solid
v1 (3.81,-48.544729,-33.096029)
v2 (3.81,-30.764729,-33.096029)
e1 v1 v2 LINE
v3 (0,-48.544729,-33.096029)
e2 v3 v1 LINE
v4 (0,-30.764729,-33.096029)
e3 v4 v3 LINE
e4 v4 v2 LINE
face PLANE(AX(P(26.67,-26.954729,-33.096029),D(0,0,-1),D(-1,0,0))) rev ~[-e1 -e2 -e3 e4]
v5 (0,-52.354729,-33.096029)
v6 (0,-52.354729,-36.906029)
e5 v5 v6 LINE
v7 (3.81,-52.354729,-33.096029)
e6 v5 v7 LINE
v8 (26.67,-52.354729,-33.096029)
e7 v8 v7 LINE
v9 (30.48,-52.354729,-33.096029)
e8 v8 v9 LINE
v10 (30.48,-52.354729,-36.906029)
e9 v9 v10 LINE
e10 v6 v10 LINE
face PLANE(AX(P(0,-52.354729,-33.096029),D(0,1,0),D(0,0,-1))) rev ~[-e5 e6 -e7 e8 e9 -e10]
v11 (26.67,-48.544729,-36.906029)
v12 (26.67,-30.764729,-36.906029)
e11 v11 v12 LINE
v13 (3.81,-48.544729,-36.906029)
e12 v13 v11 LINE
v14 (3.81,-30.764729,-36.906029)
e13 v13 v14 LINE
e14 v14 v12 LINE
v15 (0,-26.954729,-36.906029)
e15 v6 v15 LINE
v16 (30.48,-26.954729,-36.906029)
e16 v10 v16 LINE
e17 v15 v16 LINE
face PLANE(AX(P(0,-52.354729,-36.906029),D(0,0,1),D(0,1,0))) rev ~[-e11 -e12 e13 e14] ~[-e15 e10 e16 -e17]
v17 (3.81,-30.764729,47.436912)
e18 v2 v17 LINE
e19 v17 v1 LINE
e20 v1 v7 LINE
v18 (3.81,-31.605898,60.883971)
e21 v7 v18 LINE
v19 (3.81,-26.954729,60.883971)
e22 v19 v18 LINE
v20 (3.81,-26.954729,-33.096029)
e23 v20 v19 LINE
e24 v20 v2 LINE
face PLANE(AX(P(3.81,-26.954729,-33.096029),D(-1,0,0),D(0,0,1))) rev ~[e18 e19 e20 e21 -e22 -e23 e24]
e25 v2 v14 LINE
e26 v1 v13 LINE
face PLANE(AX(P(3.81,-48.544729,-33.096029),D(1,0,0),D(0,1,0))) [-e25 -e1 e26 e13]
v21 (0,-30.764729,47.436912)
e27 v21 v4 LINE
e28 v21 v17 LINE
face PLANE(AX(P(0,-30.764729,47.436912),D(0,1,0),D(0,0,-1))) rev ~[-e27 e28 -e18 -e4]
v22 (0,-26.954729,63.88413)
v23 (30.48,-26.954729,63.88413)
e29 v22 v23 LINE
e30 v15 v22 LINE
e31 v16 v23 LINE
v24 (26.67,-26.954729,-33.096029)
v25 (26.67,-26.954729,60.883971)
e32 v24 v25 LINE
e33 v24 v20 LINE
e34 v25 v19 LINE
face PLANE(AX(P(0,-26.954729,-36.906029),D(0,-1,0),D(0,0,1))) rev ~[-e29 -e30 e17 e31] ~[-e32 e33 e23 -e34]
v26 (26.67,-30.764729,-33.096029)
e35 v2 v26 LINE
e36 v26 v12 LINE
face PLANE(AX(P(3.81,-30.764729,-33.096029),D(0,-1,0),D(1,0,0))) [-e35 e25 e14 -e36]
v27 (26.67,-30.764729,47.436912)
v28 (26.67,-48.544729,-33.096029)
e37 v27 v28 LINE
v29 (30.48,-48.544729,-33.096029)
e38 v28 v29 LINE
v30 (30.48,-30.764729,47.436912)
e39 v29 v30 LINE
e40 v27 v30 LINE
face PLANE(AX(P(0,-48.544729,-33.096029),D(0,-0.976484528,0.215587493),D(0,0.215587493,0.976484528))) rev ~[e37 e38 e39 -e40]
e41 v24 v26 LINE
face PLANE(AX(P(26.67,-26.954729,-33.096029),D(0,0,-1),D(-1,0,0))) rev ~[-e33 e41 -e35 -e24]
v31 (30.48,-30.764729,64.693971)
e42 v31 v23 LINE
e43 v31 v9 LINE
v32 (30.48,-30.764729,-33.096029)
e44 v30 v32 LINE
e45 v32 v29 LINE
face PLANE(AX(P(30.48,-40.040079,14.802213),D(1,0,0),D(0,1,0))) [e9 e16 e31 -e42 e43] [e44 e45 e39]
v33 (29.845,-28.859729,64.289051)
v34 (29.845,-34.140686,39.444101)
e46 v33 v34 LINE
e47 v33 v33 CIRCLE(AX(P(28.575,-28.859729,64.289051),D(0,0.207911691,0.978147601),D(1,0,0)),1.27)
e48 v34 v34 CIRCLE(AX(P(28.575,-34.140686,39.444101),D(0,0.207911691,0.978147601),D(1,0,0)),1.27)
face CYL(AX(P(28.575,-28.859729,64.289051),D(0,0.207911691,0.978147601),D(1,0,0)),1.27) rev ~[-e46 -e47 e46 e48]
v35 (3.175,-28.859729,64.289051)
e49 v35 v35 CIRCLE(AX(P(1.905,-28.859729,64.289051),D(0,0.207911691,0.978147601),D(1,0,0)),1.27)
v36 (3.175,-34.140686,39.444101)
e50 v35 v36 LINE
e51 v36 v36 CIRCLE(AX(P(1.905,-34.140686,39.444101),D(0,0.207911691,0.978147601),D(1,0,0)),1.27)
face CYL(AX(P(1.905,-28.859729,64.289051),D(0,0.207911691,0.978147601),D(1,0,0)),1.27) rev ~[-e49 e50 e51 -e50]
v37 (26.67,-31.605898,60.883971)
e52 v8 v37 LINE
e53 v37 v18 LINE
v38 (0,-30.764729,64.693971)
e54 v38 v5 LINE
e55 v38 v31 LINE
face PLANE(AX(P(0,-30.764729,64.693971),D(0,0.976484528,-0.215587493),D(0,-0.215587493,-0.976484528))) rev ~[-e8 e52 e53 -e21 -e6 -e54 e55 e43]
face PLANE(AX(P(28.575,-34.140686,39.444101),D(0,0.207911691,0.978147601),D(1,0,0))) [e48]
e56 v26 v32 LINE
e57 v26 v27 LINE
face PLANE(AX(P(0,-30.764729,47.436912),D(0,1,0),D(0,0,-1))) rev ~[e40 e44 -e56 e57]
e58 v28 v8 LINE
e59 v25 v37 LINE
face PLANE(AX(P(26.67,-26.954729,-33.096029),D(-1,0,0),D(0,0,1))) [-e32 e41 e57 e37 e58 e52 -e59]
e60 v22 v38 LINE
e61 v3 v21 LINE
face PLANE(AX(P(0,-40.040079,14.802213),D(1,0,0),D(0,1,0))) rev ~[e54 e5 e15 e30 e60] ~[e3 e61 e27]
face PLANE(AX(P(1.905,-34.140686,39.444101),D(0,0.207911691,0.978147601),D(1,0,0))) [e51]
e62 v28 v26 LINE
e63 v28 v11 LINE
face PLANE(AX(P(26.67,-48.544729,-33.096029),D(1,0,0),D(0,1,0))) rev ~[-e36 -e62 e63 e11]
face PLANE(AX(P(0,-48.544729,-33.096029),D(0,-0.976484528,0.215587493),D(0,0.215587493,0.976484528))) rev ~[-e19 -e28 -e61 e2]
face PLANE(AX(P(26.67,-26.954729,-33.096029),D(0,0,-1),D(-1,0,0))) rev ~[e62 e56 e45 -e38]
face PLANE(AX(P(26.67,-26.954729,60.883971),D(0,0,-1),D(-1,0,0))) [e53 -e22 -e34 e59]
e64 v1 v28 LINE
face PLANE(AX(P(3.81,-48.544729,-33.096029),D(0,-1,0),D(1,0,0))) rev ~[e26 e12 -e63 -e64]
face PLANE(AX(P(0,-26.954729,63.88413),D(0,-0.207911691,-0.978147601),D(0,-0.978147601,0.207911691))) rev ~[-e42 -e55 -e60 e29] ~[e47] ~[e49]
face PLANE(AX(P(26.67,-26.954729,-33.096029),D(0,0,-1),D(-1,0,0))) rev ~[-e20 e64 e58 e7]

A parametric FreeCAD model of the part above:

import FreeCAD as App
import Part
import Sketcher
Q = App.Units.Quantity

doc = App.newDocument("Part")
body = doc.addObject("PartDesign::Body", "Body")

sketch1 = doc.addObject("Sketcher::SketchObject", "Sketch")
body.addObject(sketch1)
sketch1.AttachmentSupport = (doc.YZ_Plane, [""])
sketch1.MapMode = "FlatFace"
sketch1.addGeometry(Part.LineSegment(App.Vector(-27, -36.9, 0), App.Vector(-27, 64.7, 0)), False)
sketch1.addGeometry(Part.LineSegment(App.Vector(-27, 64.7, 0), App.Vector(-30.8, 64.7, 0)), False)
sketch1.addGeometry(Part.LineSegment(App.Vector(-30.8, 64.7, 0), App.Vector(-52.4, -33.1, 0)), False)
sketch1.addGeometry(Part.LineSegment(App.Vector(-52.4, -33.1, 0), App.Vector(-52.4, -36.9, 0)), False)
sketch1.addGeometry(Part.LineSegment(App.Vector(-52.4, -36.9, 0), App.Vector(-27, -36.9, 0)), False)
sketch1.addGeometry(Part.LineSegment(App.Vector(-48.5, -33.1, 0), App.Vector(-30.8, 47.4, 0)), False)
sketch1.addGeometry(Part.LineSegment(App.Vector(-30.8, 47.4, 0), App.Vector(-30.8, -33.1, 0)), False)
sketch1.addGeometry(Part.LineSegment(App.Vector(-30.8, -33.1, 0), App.Vector(-48.5, -33.1, 0)), False)
sketch1.addConstraint(Sketcher.Constraint("Coincident", 0, 2, 1, 1))
sketch1.addConstraint(Sketcher.Constraint("Coincident", 1, 2, 2, 1))
sketch1.addConstraint(Sketcher.Constraint("Coincident", 2, 2, 3, 1))
sketch1.addConstraint(Sketcher.Constraint("Coincident", 3, 2, 4, 1))
sketch1.addConstraint(Sketcher.Constraint("Coincident", 4, 2, 0, 1))
sketch1.addConstraint(Sketcher.Constraint("Coincident", 5, 2, 6, 1))
sketch1.addConstraint(Sketcher.Constraint("Coincident", 6, 2, 7, 1))
sketch1.addConstraint(Sketcher.Constraint("Coincident", 7, 2, 5, 1))
sketch1.addConstraint(Sketcher.Constraint("Vertical", 0))
sketch1.addConstraint(Sketcher.Constraint("Horizontal", 1))
sketch1.addConstraint(Sketcher.Constraint("Vertical", 3))
sketch1.addConstraint(Sketcher.Constraint("Horizontal", 4))
sketch1.addConstraint(Sketcher.Constraint("Vertical", 6))
sketch1.addConstraint(Sketcher.Constraint("Horizontal", 7))
sketch1.addConstraint(Sketcher.Constraint("Parallel", 2, 5))
sketch1.addConstraint(Sketcher.Constraint("Horizontal", 2, 2, 6, 2))
sketch1.addConstraint(Sketcher.Constraint("Vertical", 1, 2, 5, 2))
sketch1.addConstraint(Sketcher.Constraint("Equal", 1, 3))
sketch1.addConstraint(Sketcher.Constraint("DistanceX", 4, 1, 4, 2, Q("1 in")))
sketch1.addConstraint(Sketcher.Constraint("DistanceY", 0, 1, 0, 2, Q("4 in")))
sketch1.addConstraint(Sketcher.Constraint("DistanceX", 7, 2, 7, 1, Q("0.7 in")))
sketch1.addConstraint(Sketcher.Constraint("DistanceX", 1, 2, 1, 1, Q("0.15 in")))
sketch1.addConstraint(Sketcher.Constraint("DistanceX", 0, 2, -1, 1, 26.954729))
sketch1.addConstraint(Sketcher.Constraint("DistanceY", -1, 1, 0, 2, 64.693971))
pad1 = doc.addObject("PartDesign::Pad", "Pad")
body.addObject(pad1)
pad1.Profile = sketch1
pad1.Length = Q("1.2 in")

sketch2 = doc.addObject("Sketcher::SketchObject", "Sketch001")
body.addObject(sketch2)
sketch2.AttachmentSupport = (doc.XZ_Plane, [""])
sketch2.MapMode = "FlatFace"
sketch2.AttachmentOffset = App.Placement(App.Vector(0, 0, 26.954729), App.Rotation())
sketch2.addGeometry(Part.LineSegment(App.Vector(27, 61, 0), App.Vector(27, -33, 0)), False)
sketch2.addGeometry(Part.LineSegment(App.Vector(27, -33, 0), App.Vector(4, -33, 0)), False)
sketch2.addGeometry(Part.LineSegment(App.Vector(4, -33, 0), App.Vector(4, 61, 0)), False)
sketch2.addGeometry(Part.LineSegment(App.Vector(4, 61, 0), App.Vector(27, 61, 0)), False)
sketch2.addConstraint(Sketcher.Constraint("Coincident", 0, 2, 1, 1))
sketch2.addConstraint(Sketcher.Constraint("Coincident", 1, 2, 2, 1))
sketch2.addConstraint(Sketcher.Constraint("Coincident", 2, 2, 3, 1))
sketch2.addConstraint(Sketcher.Constraint("Coincident", 3, 2, 0, 1))
sketch2.addConstraint(Sketcher.Constraint("Vertical", 0))
sketch2.addConstraint(Sketcher.Constraint("Horizontal", 1))
sketch2.addConstraint(Sketcher.Constraint("Vertical", 2))
sketch2.addConstraint(Sketcher.Constraint("Horizontal", 3))
sketch2.addConstraint(Sketcher.Constraint("DistanceX", 1, 2, 1, 1, Q("0.9 in")))
sketch2.addConstraint(Sketcher.Constraint("DistanceY", 0, 2, 0, 1, Q("3.7 in")))
sketch2.addConstraint(Sketcher.Constraint("DistanceX", -1, 1, 0, 2, Q("1.05 in")))
sketch2.addConstraint(Sketcher.Constraint("DistanceY", 0, 2, -1, 1, 33.096029))
pocket1 = doc.addObject("PartDesign::Pocket", "Pocket")
body.addObject(pocket1)
pocket1.Profile = sketch2
pocket1.Length = Q("1 in")
pocket1.Reversed = True

sketch3 = doc.addObject("Sketcher::SketchObject", "Sketch002")
body.addObject(sketch3)
sketch3.AttachmentSupport = (doc.XY_Plane, [""])
sketch3.MapMode = "FlatFace"
sketch3.AttachmentOffset = App.Placement(App.Vector(0, 0, -33.096029), App.Rotation())
sketch3.addGeometry(Part.LineSegment(App.Vector(4, -31, 0), App.Vector(4, -49, 0)), False)
sketch3.addGeometry(Part.LineSegment(App.Vector(4, -49, 0), App.Vector(27, -49, 0)), False)
sketch3.addGeometry(Part.LineSegment(App.Vector(27, -49, 0), App.Vector(27, -31, 0)), False)
sketch3.addGeometry(Part.LineSegment(App.Vector(27, -31, 0), App.Vector(4, -31, 0)), False)
sketch3.addConstraint(Sketcher.Constraint("Coincident", 0, 2, 1, 1))
sketch3.addConstraint(Sketcher.Constraint("Coincident", 1, 2, 2, 1))
sketch3.addConstraint(Sketcher.Constraint("Coincident", 2, 2, 3, 1))
sketch3.addConstraint(Sketcher.Constraint("Coincident", 3, 2, 0, 1))
sketch3.addConstraint(Sketcher.Constraint("Vertical", 0))
sketch3.addConstraint(Sketcher.Constraint("Horizontal", 1))
sketch3.addConstraint(Sketcher.Constraint("Vertical", 2))
sketch3.addConstraint(Sketcher.Constraint("Horizontal", 3))
sketch3.addConstraint(Sketcher.Constraint("DistanceX", 1, 1, 1, 2, Q("0.9 in")))
sketch3.addConstraint(Sketcher.Constraint("DistanceY", 0, 2, 0, 1, Q("0.7 in")))
sketch3.addConstraint(Sketcher.Constraint("DistanceX", -1, 1, 0, 2, Q("0.15 in")))
sketch3.addConstraint(Sketcher.Constraint("DistanceY", 0, 2, -1, 1, 48.544729))
pocket2 = doc.addObject("PartDesign::Pocket", "Pocket001")
body.addObject(pocket2)
pocket2.Profile = sketch3
pocket2.Length = Q("1 in")

sketch4 = doc.addObject("Sketcher::SketchObject", "Sketch003")
body.addObject(sketch4)
sketch4.AttachmentSupport = (doc.YZ_Plane, [""])
sketch4.MapMode = "FlatFace"
sketch4.addGeometry(Part.LineSegment(App.Vector(-27, 63.9, 0), App.Vector(-30.8, 64.7, 0)), False)
sketch4.addGeometry(Part.LineSegment(App.Vector(-30.8, 64.7, 0), App.Vector(-27, 64.7, 0)), False)
sketch4.addGeometry(Part.LineSegment(App.Vector(-27, 64.7, 0), App.Vector(-27, 63.9, 0)), False)
sketch4.addConstraint(Sketcher.Constraint("Coincident", 0, 2, 1, 1))
sketch4.addConstraint(Sketcher.Constraint("Coincident", 1, 2, 2, 1))
sketch4.addConstraint(Sketcher.Constraint("Coincident", 2, 2, 0, 1))
sketch4.addConstraint(Sketcher.Constraint("Horizontal", 1))
sketch4.addConstraint(Sketcher.Constraint("Vertical", 2))
sketch4.addConstraint(Sketcher.Constraint("Angle", 0, Q("168 deg")))
sketch4.addConstraint(Sketcher.Constraint("DistanceX", 1, 1, 1, 2, Q("0.15 in")))
sketch4.addConstraint(Sketcher.Constraint("DistanceX", 0, 2, -1, 1, 30.764729))
sketch4.addConstraint(Sketcher.Constraint("DistanceY", -1, 1, 0, 2, 64.693971))
pocket3 = doc.addObject("PartDesign::Pocket", "Pocket002")
body.addObject(pocket3)
pocket3.Profile = sketch4
pocket3.Length = Q("2 in")
pocket3.Reversed = True

sketch5 = doc.addObject("Sketcher::SketchObject", "Sketch004")
body.addObject(sketch5)
sketch5.Placement = App.Placement(App.Vector(0, 11.826829, 55.640856), App.Rotation(App.Vector(1, 0, 0), App.Vector(0, 0.978147601, -0.207911691), App.Vector(0, 0.207911691, 0.978147601), "ZXY"))
sketch5.addGeometry(Part.Circle(App.Vector(28.6, -41.6, 0), App.Vector(0, 0, 1), 1.3), False)
sketch5.addGeometry(Part.Circle(App.Vector(1.9, -41.6, 0), App.Vector(0, 0, 1), 1.3), False)
sketch5.addConstraint(Sketcher.Constraint("Equal", 0, 1))
sketch5.addConstraint(Sketcher.Constraint("Horizontal", 0, 3, 1, 3))
sketch5.addConstraint(Sketcher.Constraint("Diameter", 0, Q("0.1 in")))
sketch5.addConstraint(Sketcher.Constraint("DistanceX", 1, 3, 0, 3, Q("1.05 in")))
sketch5.addConstraint(Sketcher.Constraint("DistanceX", -1, 1, 0, 3, Q("1.125 in")))
sketch5.addConstraint(Sketcher.Constraint("DistanceY", 0, 3, -1, 1, 41.59552))
pocket4 = doc.addObject("PartDesign::Pocket", "Pocket003")
body.addObject(pocket4)
pocket4.Profile = sketch5
pocket4.Length = Q("1 in")

doc.recompute()
